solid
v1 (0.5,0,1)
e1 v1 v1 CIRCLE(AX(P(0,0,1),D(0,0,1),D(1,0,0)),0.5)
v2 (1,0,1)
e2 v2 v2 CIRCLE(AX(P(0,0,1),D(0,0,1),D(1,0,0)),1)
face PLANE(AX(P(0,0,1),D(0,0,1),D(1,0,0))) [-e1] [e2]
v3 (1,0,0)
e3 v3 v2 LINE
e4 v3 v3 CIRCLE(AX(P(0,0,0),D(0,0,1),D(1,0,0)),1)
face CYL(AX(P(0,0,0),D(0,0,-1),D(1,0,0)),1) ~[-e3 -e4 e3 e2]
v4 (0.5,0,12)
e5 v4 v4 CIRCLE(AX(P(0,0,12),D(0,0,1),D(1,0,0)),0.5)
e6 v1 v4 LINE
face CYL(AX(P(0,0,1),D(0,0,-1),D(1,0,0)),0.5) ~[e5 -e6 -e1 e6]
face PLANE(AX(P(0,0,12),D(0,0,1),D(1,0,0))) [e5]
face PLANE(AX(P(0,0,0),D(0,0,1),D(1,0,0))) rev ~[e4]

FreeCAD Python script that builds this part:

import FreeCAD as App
import Part
import Sketcher
Q = App.Units.Quantity

doc = App.newDocument("Part")
body = doc.addObject("PartDesign::Body", "Body")

sketch1 = doc.addObject("Sketcher::SketchObject", "Sketch")
body.addObject(sketch1)
sketch1.AttachmentSupport = (doc.XY_Plane, [""])
sketch1.MapMode = "FlatFace"
sketch1.addGeometry(Part.Circle(App.Vector(0, 0, 0), App.Vector(0, 0, 1), 1), False)
sketch1.addConstraint(Sketcher.Constraint("Coincident", 0, 3, -1, 1))
sketch1.addConstraint(Sketcher.Constraint("Diameter", 0, Q("2 mm")))
pad1 = doc.addObject("PartDesign::Pad", "Pad")
body.addObject(pad1)
pad1.Profile = sketch1
pad1.Length = 1

sketch2 = doc.addObject("Sketcher::SketchObject", "Sketch001")
body.addObject(sketch2)
sketch2.AttachmentSupport = (doc.XY_Plane, [""])
sketch2.MapMode = "FlatFace"
sketch2.AttachmentOffset = App.Placement(App.Vector(0, 0, 1), App.Rotation())
sketch2.addGeometry(Part.Circle(App.Vector(0, 0, 0), App.Vector(0, 0, 1), 0.5), False)
sketch2.addConstraint(Sketcher.Constraint("Coincident", 0, 3, -1, 1))
sketch2.addConstraint(Sketcher.Constraint("Diameter", 0, Q("1 mm")))
pad2 = doc.addObject("PartDesign::Pad", "Pad001")
body.addObject(pad2)
pad2.Profile = sketch2
pad2.Length = 11

doc.recompute()
